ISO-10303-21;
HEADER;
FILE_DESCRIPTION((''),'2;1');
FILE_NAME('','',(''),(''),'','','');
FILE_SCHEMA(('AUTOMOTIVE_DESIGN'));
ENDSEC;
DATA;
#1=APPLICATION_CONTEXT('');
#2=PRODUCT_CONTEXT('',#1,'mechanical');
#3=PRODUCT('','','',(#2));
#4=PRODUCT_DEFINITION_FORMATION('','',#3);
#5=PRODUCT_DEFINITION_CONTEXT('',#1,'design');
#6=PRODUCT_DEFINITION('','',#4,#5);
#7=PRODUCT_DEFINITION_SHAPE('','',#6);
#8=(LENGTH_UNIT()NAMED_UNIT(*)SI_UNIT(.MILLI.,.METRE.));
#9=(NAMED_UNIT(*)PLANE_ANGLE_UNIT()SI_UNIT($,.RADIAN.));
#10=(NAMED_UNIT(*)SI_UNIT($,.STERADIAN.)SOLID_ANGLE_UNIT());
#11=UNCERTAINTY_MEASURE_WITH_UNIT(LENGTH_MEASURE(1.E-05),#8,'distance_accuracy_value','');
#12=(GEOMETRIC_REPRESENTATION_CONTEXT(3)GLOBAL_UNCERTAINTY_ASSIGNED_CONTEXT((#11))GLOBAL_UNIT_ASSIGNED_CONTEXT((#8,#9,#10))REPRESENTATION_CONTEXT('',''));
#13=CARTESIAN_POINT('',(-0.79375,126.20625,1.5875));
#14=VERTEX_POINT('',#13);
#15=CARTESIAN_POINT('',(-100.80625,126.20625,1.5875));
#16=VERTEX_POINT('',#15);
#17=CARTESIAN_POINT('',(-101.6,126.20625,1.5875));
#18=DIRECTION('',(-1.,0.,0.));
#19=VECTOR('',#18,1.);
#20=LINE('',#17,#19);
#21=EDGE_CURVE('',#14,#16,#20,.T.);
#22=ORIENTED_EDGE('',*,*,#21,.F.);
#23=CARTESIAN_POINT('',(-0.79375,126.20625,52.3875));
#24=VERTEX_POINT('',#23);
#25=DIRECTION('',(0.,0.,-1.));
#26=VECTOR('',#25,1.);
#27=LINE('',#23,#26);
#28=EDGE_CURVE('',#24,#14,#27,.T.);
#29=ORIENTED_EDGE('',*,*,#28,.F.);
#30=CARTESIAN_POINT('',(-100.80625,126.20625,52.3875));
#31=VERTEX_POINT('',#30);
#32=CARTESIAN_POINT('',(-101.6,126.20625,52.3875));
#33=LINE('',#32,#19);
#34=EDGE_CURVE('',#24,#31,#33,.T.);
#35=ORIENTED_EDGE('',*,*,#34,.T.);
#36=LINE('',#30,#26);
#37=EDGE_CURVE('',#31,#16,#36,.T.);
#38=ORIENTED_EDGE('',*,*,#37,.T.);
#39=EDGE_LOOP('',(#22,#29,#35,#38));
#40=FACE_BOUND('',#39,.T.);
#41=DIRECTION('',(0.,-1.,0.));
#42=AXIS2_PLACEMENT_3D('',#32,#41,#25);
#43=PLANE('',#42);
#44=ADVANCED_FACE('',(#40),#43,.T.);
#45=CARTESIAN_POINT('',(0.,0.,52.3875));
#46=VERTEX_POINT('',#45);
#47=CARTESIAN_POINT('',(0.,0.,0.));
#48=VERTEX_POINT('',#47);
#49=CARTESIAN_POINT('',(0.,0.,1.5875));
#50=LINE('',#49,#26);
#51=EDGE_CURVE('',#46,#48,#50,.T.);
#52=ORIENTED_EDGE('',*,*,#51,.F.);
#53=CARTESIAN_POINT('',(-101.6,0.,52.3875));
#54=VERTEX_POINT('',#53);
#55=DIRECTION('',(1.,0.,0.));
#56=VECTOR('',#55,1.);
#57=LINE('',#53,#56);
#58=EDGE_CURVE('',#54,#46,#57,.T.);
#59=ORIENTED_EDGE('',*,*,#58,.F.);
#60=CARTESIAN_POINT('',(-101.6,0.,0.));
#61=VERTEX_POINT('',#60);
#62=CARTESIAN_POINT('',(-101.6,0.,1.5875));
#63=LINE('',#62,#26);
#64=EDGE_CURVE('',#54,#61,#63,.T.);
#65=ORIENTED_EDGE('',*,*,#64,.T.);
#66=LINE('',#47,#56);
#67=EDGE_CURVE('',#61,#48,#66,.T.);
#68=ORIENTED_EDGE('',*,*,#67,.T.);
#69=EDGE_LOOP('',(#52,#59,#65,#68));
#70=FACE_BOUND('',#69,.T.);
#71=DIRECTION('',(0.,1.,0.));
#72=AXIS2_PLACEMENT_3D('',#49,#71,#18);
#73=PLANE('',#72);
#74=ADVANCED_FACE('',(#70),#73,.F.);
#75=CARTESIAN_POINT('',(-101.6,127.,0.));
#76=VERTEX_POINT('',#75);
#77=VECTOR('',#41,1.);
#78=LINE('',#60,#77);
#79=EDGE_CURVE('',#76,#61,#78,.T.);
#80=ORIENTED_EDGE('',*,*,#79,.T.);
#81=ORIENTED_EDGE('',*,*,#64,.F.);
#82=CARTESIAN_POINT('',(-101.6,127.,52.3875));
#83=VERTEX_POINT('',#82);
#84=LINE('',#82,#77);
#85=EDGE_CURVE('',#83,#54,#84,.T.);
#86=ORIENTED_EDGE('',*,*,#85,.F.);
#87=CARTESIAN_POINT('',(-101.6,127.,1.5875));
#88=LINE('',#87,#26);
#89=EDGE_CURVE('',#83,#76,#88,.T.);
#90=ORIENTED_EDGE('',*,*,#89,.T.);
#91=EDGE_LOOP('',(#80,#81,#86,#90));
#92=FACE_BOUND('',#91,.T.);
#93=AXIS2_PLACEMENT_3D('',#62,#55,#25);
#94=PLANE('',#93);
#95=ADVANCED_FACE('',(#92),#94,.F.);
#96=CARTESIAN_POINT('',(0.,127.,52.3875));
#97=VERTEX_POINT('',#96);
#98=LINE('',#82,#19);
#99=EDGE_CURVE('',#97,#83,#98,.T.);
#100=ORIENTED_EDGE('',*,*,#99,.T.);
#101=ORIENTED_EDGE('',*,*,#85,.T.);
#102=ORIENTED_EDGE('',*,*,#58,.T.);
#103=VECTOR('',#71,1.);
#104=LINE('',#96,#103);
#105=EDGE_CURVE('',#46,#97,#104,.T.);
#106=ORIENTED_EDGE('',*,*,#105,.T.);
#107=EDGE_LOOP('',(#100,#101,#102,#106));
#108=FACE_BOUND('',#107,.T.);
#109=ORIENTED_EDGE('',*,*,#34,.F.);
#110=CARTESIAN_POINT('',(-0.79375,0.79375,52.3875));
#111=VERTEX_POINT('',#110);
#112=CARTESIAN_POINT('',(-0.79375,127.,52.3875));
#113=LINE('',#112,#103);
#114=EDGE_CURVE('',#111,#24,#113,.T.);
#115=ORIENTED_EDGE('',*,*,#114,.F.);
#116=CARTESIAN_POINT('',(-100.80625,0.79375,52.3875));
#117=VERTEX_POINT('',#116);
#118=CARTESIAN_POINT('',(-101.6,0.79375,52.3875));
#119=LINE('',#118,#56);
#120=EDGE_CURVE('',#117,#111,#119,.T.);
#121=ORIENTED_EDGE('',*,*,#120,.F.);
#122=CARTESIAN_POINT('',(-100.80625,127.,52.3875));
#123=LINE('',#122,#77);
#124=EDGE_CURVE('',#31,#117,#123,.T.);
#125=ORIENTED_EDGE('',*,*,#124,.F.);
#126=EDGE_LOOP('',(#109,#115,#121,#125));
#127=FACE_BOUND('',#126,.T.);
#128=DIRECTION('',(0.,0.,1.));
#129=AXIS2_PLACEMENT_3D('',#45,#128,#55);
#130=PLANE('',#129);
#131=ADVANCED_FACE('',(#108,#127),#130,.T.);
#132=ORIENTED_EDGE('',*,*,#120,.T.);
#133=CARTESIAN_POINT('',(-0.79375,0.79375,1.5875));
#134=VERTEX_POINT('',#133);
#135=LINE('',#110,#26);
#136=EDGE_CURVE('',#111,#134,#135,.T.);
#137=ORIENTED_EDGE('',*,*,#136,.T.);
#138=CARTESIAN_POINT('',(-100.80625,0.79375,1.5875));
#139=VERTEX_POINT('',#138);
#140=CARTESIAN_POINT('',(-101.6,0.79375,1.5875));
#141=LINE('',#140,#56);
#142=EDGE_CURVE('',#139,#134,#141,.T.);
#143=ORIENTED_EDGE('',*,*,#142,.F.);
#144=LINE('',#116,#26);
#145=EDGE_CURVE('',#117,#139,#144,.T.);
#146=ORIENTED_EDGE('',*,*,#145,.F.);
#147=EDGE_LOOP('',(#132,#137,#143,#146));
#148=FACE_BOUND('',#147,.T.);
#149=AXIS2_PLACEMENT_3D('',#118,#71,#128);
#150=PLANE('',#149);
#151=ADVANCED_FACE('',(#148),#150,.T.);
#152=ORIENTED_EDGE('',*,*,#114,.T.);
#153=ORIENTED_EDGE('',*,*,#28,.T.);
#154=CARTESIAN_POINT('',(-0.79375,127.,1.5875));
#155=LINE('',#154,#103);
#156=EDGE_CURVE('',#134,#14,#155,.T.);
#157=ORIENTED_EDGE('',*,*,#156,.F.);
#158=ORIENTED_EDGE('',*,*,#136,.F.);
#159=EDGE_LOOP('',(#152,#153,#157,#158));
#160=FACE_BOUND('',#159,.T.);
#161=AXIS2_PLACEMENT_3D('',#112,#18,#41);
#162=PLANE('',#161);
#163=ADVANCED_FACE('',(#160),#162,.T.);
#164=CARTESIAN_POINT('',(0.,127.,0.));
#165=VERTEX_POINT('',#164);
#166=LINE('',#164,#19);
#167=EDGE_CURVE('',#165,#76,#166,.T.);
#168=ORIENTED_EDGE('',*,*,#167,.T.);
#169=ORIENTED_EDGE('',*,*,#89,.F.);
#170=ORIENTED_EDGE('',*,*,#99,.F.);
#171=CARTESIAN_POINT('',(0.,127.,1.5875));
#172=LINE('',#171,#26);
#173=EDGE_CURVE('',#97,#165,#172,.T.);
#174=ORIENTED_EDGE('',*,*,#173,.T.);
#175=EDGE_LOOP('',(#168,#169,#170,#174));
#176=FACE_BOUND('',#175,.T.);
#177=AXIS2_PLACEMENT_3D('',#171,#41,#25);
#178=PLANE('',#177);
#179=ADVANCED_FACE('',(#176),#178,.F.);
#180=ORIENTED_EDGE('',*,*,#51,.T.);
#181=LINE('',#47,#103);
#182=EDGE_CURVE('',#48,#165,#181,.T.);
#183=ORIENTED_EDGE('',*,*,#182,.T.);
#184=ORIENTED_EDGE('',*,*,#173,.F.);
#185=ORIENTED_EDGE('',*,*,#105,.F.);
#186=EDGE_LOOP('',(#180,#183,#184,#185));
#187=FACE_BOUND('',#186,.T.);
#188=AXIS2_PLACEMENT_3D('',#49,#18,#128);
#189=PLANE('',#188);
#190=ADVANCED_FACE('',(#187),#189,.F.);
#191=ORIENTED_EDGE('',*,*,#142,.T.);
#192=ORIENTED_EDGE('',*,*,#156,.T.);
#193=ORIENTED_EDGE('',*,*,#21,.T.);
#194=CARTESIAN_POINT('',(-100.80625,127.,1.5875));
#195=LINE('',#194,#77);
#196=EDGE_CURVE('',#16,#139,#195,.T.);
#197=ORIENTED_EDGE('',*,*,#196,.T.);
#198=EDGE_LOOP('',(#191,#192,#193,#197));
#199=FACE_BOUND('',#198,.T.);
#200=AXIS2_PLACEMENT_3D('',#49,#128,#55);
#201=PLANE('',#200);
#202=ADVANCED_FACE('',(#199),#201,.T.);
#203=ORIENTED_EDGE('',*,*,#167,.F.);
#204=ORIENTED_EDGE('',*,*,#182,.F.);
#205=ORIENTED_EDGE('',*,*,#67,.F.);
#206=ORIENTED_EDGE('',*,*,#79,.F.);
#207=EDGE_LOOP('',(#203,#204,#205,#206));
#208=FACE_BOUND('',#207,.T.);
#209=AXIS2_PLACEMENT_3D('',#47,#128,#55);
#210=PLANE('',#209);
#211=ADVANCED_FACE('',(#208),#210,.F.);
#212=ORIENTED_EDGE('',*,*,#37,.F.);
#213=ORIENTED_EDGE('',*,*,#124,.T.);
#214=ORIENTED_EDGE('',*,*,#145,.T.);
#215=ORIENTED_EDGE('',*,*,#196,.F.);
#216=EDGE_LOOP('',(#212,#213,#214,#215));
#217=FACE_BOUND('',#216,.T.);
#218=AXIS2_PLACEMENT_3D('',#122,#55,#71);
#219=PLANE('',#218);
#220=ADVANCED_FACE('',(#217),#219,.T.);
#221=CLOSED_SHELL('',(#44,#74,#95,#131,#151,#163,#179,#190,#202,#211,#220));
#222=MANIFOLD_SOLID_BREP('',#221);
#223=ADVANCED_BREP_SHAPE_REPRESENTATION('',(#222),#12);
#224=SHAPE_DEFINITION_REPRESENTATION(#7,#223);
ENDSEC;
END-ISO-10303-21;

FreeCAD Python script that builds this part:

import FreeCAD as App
import Part
import Sketcher
Q = App.Units.Quantity

doc = App.newDocument("Part")
body = doc.addObject("PartDesign::Body", "Body")

# Sketch on XY plane
sketch1 = doc.addObject("Sketcher::SketchObject", "Sketch")
body.addObject(sketch1)
sketch1.AttachmentSupport = (doc.XY_Plane, [""])
sketch1.MapMode = "FlatFace"
sketch1.addGeometry([
    Part.LineSegment(App.Vector(-102, 127, 0), App.Vector(-102, 0, 0)),
    Part.LineSegment(App.Vector(-102, 0, 0), App.Vector(0, 0, 0)),
    Part.LineSegment(App.Vector(0, 0, 0), App.Vector(0, 127, 0)),
    Part.LineSegment(App.Vector(0, 127, 0), App.Vector(-102, 127, 0)),
], False)
sketch1.addConstraint([
    Sketcher.Constraint("Coincident", 0, 2, 1, 1),
    Sketcher.Constraint("Coincident", 1, 2, 2, 1),
    Sketcher.Constraint("Coincident", 2, 2, 3, 1),
    Sketcher.Constraint("Coincident", 3, 2, 0, 1),
    Sketcher.Constraint("Vertical", 0),
    Sketcher.Constraint("Horizontal", 1),
    Sketcher.Constraint("Vertical", 2),
    Sketcher.Constraint("Horizontal", 3),
    Sketcher.Constraint("Coincident", 1, 2, -1, 1),
    Sketcher.Constraint("DistanceX", 1, 1, 1, 2, Q("4 in")),
    Sketcher.Constraint("DistanceY", 0, 2, 0, 1, Q("5 in")),
])
pad1 = doc.addObject("PartDesign::Pad", "Pad")
body.addObject(pad1)
pad1.Profile = sketch1
pad1.Length = Q("0.0625 in")

# Sketch on XY plane
sketch2 = doc.addObject("Sketcher::SketchObject", "Sketch001")
body.addObject(sketch2)
sketch2.AttachmentSupport = (doc.XY_Plane, [""])
sketch2.MapMode = "FlatFace"
sketch2.AttachmentOffset = App.Placement(App.Vector(0, 0, 0.0625 * 25.4), App.Rotation())
sketch2.addGeometry([
    Part.LineSegment(App.Vector(-102, 127, 0), App.Vector(-102, 0, 0)),  # 0
    Part.LineSegment(App.Vector(-102, 0, 0), App.Vector(0, 0, 0)),  # 1
    Part.LineSegment(App.Vector(0, 0, 0), App.Vector(0, 127, 0)),  # 2
    Part.LineSegment(App.Vector(0, 127, 0), App.Vector(-102, 127, 0)),  # 3
    Part.LineSegment(App.Vector(-1, 1, 0), App.Vector(-101, 1, 0)),  # 4
    Part.LineSegment(App.Vector(-101, 1, 0), App.Vector(-101, 126, 0)),  # 5
    Part.LineSegment(App.Vector(-101, 126, 0), App.Vector(-1, 126, 0)),  # 6
    Part.LineSegment(App.Vector(-1, 126, 0), App.Vector(-1, 1, 0)),  # 7
], False)
sketch2.addConstraint([
    Sketcher.Constraint("Coincident", 0, 2, 1, 1),
    Sketcher.Constraint("Coincident", 1, 2, 2, 1),
    Sketcher.Constraint("Coincident", 2, 2, 3, 1),
    Sketcher.Constraint("Coincident", 3, 2, 0, 1),
    Sketcher.Constraint("Coincident", 4, 2, 5, 1),
    Sketcher.Constraint("Coincident", 5, 2, 6, 1),
    Sketcher.Constraint("Coincident", 6, 2, 7, 1),
    Sketcher.Constraint("Coincident", 7, 2, 4, 1),
    Sketcher.Constraint("Vertical", 0),
    Sketcher.Constraint("Horizontal", 1),
    Sketcher.Constraint("Vertical", 2),
    Sketcher.Constraint("Horizontal", 3),
    Sketcher.Constraint("Horizontal", 4),
    Sketcher.Constraint("Vertical", 5),
    Sketcher.Constraint("Horizontal", 6),
    Sketcher.Constraint("Vertical", 7),
    Sketcher.Constraint("Coincident", 1, 2, -1, 1),
    Sketcher.Constraint("DistanceX", 1, 1, 1, 2, Q("4 in")),
    Sketcher.Constraint("DistanceY", 0, 2, 0, 1, Q("5 in")),
    Sketcher.Constraint("DistanceX", 4, 2, 4, 1, Q("3.9375 in")),
    Sketcher.Constraint("DistanceY", 5, 1, 5, 2, Q("4.9375 in")),
    Sketcher.Constraint("DistanceX", 4, 2, -1, 1, Q("3.96875 in")),
    Sketcher.Constraint("DistanceY", -1, 1, 4, 2, Q("0.03125 in")),
])
pad2 = doc.addObject("PartDesign::Pad", "Pad001")
body.addObject(pad2)
pad2.Profile = sketch2
pad2.Length = Q("2 in")

doc.recompute()
